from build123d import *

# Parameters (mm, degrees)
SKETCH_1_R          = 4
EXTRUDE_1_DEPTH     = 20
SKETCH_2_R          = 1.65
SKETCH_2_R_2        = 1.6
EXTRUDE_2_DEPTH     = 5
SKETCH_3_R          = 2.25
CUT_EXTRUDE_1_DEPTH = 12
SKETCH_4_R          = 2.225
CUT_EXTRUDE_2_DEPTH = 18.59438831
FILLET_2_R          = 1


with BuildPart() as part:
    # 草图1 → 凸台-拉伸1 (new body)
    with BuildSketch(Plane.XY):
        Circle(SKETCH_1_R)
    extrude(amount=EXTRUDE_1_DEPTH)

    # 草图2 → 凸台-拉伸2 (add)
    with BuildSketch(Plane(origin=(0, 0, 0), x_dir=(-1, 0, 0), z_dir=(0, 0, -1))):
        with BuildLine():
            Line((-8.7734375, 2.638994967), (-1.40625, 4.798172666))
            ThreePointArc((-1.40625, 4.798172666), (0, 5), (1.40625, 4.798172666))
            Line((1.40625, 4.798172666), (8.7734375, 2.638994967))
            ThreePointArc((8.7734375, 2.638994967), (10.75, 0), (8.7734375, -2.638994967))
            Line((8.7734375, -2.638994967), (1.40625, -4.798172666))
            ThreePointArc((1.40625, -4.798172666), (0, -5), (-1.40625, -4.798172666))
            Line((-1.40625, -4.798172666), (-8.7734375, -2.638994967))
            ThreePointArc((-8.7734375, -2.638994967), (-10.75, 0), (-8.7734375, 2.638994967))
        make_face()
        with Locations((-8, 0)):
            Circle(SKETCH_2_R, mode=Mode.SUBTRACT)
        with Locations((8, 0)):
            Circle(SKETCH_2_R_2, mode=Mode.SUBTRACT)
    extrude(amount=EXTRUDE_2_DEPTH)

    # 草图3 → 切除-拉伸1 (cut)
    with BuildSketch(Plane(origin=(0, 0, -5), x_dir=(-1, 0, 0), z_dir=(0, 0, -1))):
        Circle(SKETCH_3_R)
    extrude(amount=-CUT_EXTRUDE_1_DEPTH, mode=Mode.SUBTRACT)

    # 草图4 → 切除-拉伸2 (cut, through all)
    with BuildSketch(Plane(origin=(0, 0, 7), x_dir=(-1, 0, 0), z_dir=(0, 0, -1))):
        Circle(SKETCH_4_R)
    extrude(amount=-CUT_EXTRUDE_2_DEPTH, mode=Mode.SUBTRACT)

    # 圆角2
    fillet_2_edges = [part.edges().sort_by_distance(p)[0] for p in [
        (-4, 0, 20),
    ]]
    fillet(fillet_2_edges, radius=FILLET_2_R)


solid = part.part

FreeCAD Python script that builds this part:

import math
import FreeCAD as App
import Part
import Sketcher
Q = App.Units.Quantity


def edges_at(feature, points):
    """Names of the edges that pass closest to the given points."""
    edges = feature.Shape.Edges
    near = lambda p: min(range(len(edges)), key=lambda i: edges[i].distToShape(Part.Vertex(*p))[0])
    return sorted({f"Edge{near(p) + 1}" for p in points})

doc = App.newDocument("Part")
body = doc.addObject("PartDesign::Body", "Body")

sketch1 = body.newObject("Sketcher::SketchObject", "Sketch")
sketch1.AttachmentSupport = (doc.getObject("XY_Plane"), [""])
sketch1.MapMode = "FlatFace"
sketch1.addGeometry(Part.Circle(App.Vector(0, 0, 0), App.Vector(0, 0, 1), 4), False)
sketch1.addConstraint([
    Sketcher.Constraint("Coincident", 0, 3, -1, 1),
    Sketcher.Constraint("Diameter", 0, Q("8 mm")),
])
pad1 = body.newObject("PartDesign::Pad", "Pad")
pad1.Profile = sketch1
pad1.Length = 20

sketch2 = body.newObject("Sketcher::SketchObject", "Sketch001")
sketch2.AttachmentSupport = (doc.getObject("XY_Plane"), [""])
sketch2.MapMode = "FlatFace"
sketch2.addGeometry([
    Part.LineSegment(App.Vector(1.4, 4.8, 0), App.Vector(8.8, 2.6, 0)),
    Part.ArcOfCircle(Part.Circle(App.Vector(8, 0, 0), App.Vector(0, 0, 1), 2.8), math.radians(-74), math.radians(74)),
    Part.LineSegment(App.Vector(8.8, -2.6, 0), App.Vector(1.4, -4.8, 0)),
    Part.ArcOfCircle(Part.Circle(App.Vector(0, 0, 0), App.Vector(0, 0, 1), 5), math.radians(-106), math.radians(-74)),
    Part.LineSegment(App.Vector(-1.4, -4.8, 0), App.Vector(-8.8, -2.6, 0)),
    Part.ArcOfCircle(Part.Circle(App.Vector(-8, 0, 0), App.Vector(0, 0, 1), 2.8), math.radians(106), math.radians(254)),
    Part.LineSegment(App.Vector(-8.8, 2.6, 0), App.Vector(-1.4, 4.8, 0)),
    Part.ArcOfCircle(Part.Circle(App.Vector(0, 0, 0), App.Vector(0, 0, 1), 5), math.radians(74), math.radians(106)),
    Part.Circle(App.Vector(-8, 0, 0), App.Vector(0, 0, 1), 1.6),
    Part.Circle(App.Vector(8, 0, 0), App.Vector(0, 0, 1), 1.6),
], False)
sketch2.addConstraint([
    Sketcher.Constraint("Tangent", 0, 2, 1, 2),
    Sketcher.Constraint("Tangent", 1, 1, 2, 1),
    Sketcher.Constraint("Tangent", 2, 2, 3, 2),
    Sketcher.Constraint("Tangent", 3, 1, 4, 1),
    Sketcher.Constraint("Tangent", 4, 2, 5, 2),
    Sketcher.Constraint("Tangent", 5, 1, 6, 1),
    Sketcher.Constraint("Tangent", 6, 2, 7, 2),
    Sketcher.Constraint("Tangent", 7, 1, 0, 1),
    Sketcher.Constraint("Coincident", 3, 3, -1, 1),
    Sketcher.Constraint("Coincident", 7, 3, -1, 1),
    Sketcher.Constraint("Coincident", 8, 3, 5, 3),
    Sketcher.Constraint("Coincident", 9, 3, 1, 3),
    Sketcher.Constraint("Equal", 1, 5),
    Sketcher.Constraint("Equal", 3, 7),
    Sketcher.Constraint("Symmetric", 1, 3, 5, 3, -1, 1),
    Sketcher.Constraint("PointOnObject", 1, 3, -1),
    Sketcher.Constraint("Radius", 3, Q("5 mm")),
    Sketcher.Constraint("Diameter", 8, Q("3.2 mm")),
    Sketcher.Constraint("Diameter", 9, Q("3.3 mm")),
    Sketcher.Constraint("Radius", 1, Q("2.75 mm")),
    Sketcher.Constraint("DistanceX", -1, 1, 1, 3, Q("8 mm")),
])
pad2 = body.newObject("PartDesign::Pad", "Pad001")
pad2.Profile = sketch2
pad2.Length = 5
pad2.Reversed = True

sketch3 = body.newObject("Sketcher::SketchObject", "Sketch002")
sketch3.AttachmentSupport = (doc.getObject("XY_Plane"), [""])
sketch3.MapMode = "FlatFace"
sketch3.AttachmentOffset = App.Placement(App.Vector(0, 0, -5), App.Rotation())
sketch3.addGeometry(Part.Circle(App.Vector(0, 0, 0), App.Vector(0, 0, 1), 2.2), False)
sketch3.addConstraint([
    Sketcher.Constraint("Coincident", 0, 3, -1, 1),
    Sketcher.Constraint("Diameter", 0, Q("4.5 mm")),
])
pocket1 = body.newObject("PartDesign::Pocket", "Pocket")
pocket1.Profile = sketch3
pocket1.Length = 12
pocket1.Reversed = True

sketch4 = body.newObject("Sketcher::SketchObject", "Sketch003")
sketch4.AttachmentSupport = (doc.getObject("XY_Plane"), [""])
sketch4.MapMode = "FlatFace"
sketch4.AttachmentOffset = App.Placement(App.Vector(0, 0, 7), App.Rotation())
sketch4.addGeometry(Part.Circle(App.Vector(0, 0, 0), App.Vector(0, 0, 1), 2.2), False)
sketch4.addConstraint([
    Sketcher.Constraint("Coincident", 0, 3, -1, 1),
    Sketcher.Constraint("Diameter", 0, Q("4.45 mm")),
])
pocket2 = body.newObject("PartDesign::Pocket", "Pocket001")
pocket2.Profile = sketch4
pocket2.Type = "ThroughAll"
pocket2.Reversed = True
doc.recompute()

fillet = body.newObject("PartDesign::Fillet", "Fillet")
fillet.Base = (pocket2, edges_at(pocket2, [(-4, 0, 20)]))
fillet.Radius = 1

doc.recompute()
